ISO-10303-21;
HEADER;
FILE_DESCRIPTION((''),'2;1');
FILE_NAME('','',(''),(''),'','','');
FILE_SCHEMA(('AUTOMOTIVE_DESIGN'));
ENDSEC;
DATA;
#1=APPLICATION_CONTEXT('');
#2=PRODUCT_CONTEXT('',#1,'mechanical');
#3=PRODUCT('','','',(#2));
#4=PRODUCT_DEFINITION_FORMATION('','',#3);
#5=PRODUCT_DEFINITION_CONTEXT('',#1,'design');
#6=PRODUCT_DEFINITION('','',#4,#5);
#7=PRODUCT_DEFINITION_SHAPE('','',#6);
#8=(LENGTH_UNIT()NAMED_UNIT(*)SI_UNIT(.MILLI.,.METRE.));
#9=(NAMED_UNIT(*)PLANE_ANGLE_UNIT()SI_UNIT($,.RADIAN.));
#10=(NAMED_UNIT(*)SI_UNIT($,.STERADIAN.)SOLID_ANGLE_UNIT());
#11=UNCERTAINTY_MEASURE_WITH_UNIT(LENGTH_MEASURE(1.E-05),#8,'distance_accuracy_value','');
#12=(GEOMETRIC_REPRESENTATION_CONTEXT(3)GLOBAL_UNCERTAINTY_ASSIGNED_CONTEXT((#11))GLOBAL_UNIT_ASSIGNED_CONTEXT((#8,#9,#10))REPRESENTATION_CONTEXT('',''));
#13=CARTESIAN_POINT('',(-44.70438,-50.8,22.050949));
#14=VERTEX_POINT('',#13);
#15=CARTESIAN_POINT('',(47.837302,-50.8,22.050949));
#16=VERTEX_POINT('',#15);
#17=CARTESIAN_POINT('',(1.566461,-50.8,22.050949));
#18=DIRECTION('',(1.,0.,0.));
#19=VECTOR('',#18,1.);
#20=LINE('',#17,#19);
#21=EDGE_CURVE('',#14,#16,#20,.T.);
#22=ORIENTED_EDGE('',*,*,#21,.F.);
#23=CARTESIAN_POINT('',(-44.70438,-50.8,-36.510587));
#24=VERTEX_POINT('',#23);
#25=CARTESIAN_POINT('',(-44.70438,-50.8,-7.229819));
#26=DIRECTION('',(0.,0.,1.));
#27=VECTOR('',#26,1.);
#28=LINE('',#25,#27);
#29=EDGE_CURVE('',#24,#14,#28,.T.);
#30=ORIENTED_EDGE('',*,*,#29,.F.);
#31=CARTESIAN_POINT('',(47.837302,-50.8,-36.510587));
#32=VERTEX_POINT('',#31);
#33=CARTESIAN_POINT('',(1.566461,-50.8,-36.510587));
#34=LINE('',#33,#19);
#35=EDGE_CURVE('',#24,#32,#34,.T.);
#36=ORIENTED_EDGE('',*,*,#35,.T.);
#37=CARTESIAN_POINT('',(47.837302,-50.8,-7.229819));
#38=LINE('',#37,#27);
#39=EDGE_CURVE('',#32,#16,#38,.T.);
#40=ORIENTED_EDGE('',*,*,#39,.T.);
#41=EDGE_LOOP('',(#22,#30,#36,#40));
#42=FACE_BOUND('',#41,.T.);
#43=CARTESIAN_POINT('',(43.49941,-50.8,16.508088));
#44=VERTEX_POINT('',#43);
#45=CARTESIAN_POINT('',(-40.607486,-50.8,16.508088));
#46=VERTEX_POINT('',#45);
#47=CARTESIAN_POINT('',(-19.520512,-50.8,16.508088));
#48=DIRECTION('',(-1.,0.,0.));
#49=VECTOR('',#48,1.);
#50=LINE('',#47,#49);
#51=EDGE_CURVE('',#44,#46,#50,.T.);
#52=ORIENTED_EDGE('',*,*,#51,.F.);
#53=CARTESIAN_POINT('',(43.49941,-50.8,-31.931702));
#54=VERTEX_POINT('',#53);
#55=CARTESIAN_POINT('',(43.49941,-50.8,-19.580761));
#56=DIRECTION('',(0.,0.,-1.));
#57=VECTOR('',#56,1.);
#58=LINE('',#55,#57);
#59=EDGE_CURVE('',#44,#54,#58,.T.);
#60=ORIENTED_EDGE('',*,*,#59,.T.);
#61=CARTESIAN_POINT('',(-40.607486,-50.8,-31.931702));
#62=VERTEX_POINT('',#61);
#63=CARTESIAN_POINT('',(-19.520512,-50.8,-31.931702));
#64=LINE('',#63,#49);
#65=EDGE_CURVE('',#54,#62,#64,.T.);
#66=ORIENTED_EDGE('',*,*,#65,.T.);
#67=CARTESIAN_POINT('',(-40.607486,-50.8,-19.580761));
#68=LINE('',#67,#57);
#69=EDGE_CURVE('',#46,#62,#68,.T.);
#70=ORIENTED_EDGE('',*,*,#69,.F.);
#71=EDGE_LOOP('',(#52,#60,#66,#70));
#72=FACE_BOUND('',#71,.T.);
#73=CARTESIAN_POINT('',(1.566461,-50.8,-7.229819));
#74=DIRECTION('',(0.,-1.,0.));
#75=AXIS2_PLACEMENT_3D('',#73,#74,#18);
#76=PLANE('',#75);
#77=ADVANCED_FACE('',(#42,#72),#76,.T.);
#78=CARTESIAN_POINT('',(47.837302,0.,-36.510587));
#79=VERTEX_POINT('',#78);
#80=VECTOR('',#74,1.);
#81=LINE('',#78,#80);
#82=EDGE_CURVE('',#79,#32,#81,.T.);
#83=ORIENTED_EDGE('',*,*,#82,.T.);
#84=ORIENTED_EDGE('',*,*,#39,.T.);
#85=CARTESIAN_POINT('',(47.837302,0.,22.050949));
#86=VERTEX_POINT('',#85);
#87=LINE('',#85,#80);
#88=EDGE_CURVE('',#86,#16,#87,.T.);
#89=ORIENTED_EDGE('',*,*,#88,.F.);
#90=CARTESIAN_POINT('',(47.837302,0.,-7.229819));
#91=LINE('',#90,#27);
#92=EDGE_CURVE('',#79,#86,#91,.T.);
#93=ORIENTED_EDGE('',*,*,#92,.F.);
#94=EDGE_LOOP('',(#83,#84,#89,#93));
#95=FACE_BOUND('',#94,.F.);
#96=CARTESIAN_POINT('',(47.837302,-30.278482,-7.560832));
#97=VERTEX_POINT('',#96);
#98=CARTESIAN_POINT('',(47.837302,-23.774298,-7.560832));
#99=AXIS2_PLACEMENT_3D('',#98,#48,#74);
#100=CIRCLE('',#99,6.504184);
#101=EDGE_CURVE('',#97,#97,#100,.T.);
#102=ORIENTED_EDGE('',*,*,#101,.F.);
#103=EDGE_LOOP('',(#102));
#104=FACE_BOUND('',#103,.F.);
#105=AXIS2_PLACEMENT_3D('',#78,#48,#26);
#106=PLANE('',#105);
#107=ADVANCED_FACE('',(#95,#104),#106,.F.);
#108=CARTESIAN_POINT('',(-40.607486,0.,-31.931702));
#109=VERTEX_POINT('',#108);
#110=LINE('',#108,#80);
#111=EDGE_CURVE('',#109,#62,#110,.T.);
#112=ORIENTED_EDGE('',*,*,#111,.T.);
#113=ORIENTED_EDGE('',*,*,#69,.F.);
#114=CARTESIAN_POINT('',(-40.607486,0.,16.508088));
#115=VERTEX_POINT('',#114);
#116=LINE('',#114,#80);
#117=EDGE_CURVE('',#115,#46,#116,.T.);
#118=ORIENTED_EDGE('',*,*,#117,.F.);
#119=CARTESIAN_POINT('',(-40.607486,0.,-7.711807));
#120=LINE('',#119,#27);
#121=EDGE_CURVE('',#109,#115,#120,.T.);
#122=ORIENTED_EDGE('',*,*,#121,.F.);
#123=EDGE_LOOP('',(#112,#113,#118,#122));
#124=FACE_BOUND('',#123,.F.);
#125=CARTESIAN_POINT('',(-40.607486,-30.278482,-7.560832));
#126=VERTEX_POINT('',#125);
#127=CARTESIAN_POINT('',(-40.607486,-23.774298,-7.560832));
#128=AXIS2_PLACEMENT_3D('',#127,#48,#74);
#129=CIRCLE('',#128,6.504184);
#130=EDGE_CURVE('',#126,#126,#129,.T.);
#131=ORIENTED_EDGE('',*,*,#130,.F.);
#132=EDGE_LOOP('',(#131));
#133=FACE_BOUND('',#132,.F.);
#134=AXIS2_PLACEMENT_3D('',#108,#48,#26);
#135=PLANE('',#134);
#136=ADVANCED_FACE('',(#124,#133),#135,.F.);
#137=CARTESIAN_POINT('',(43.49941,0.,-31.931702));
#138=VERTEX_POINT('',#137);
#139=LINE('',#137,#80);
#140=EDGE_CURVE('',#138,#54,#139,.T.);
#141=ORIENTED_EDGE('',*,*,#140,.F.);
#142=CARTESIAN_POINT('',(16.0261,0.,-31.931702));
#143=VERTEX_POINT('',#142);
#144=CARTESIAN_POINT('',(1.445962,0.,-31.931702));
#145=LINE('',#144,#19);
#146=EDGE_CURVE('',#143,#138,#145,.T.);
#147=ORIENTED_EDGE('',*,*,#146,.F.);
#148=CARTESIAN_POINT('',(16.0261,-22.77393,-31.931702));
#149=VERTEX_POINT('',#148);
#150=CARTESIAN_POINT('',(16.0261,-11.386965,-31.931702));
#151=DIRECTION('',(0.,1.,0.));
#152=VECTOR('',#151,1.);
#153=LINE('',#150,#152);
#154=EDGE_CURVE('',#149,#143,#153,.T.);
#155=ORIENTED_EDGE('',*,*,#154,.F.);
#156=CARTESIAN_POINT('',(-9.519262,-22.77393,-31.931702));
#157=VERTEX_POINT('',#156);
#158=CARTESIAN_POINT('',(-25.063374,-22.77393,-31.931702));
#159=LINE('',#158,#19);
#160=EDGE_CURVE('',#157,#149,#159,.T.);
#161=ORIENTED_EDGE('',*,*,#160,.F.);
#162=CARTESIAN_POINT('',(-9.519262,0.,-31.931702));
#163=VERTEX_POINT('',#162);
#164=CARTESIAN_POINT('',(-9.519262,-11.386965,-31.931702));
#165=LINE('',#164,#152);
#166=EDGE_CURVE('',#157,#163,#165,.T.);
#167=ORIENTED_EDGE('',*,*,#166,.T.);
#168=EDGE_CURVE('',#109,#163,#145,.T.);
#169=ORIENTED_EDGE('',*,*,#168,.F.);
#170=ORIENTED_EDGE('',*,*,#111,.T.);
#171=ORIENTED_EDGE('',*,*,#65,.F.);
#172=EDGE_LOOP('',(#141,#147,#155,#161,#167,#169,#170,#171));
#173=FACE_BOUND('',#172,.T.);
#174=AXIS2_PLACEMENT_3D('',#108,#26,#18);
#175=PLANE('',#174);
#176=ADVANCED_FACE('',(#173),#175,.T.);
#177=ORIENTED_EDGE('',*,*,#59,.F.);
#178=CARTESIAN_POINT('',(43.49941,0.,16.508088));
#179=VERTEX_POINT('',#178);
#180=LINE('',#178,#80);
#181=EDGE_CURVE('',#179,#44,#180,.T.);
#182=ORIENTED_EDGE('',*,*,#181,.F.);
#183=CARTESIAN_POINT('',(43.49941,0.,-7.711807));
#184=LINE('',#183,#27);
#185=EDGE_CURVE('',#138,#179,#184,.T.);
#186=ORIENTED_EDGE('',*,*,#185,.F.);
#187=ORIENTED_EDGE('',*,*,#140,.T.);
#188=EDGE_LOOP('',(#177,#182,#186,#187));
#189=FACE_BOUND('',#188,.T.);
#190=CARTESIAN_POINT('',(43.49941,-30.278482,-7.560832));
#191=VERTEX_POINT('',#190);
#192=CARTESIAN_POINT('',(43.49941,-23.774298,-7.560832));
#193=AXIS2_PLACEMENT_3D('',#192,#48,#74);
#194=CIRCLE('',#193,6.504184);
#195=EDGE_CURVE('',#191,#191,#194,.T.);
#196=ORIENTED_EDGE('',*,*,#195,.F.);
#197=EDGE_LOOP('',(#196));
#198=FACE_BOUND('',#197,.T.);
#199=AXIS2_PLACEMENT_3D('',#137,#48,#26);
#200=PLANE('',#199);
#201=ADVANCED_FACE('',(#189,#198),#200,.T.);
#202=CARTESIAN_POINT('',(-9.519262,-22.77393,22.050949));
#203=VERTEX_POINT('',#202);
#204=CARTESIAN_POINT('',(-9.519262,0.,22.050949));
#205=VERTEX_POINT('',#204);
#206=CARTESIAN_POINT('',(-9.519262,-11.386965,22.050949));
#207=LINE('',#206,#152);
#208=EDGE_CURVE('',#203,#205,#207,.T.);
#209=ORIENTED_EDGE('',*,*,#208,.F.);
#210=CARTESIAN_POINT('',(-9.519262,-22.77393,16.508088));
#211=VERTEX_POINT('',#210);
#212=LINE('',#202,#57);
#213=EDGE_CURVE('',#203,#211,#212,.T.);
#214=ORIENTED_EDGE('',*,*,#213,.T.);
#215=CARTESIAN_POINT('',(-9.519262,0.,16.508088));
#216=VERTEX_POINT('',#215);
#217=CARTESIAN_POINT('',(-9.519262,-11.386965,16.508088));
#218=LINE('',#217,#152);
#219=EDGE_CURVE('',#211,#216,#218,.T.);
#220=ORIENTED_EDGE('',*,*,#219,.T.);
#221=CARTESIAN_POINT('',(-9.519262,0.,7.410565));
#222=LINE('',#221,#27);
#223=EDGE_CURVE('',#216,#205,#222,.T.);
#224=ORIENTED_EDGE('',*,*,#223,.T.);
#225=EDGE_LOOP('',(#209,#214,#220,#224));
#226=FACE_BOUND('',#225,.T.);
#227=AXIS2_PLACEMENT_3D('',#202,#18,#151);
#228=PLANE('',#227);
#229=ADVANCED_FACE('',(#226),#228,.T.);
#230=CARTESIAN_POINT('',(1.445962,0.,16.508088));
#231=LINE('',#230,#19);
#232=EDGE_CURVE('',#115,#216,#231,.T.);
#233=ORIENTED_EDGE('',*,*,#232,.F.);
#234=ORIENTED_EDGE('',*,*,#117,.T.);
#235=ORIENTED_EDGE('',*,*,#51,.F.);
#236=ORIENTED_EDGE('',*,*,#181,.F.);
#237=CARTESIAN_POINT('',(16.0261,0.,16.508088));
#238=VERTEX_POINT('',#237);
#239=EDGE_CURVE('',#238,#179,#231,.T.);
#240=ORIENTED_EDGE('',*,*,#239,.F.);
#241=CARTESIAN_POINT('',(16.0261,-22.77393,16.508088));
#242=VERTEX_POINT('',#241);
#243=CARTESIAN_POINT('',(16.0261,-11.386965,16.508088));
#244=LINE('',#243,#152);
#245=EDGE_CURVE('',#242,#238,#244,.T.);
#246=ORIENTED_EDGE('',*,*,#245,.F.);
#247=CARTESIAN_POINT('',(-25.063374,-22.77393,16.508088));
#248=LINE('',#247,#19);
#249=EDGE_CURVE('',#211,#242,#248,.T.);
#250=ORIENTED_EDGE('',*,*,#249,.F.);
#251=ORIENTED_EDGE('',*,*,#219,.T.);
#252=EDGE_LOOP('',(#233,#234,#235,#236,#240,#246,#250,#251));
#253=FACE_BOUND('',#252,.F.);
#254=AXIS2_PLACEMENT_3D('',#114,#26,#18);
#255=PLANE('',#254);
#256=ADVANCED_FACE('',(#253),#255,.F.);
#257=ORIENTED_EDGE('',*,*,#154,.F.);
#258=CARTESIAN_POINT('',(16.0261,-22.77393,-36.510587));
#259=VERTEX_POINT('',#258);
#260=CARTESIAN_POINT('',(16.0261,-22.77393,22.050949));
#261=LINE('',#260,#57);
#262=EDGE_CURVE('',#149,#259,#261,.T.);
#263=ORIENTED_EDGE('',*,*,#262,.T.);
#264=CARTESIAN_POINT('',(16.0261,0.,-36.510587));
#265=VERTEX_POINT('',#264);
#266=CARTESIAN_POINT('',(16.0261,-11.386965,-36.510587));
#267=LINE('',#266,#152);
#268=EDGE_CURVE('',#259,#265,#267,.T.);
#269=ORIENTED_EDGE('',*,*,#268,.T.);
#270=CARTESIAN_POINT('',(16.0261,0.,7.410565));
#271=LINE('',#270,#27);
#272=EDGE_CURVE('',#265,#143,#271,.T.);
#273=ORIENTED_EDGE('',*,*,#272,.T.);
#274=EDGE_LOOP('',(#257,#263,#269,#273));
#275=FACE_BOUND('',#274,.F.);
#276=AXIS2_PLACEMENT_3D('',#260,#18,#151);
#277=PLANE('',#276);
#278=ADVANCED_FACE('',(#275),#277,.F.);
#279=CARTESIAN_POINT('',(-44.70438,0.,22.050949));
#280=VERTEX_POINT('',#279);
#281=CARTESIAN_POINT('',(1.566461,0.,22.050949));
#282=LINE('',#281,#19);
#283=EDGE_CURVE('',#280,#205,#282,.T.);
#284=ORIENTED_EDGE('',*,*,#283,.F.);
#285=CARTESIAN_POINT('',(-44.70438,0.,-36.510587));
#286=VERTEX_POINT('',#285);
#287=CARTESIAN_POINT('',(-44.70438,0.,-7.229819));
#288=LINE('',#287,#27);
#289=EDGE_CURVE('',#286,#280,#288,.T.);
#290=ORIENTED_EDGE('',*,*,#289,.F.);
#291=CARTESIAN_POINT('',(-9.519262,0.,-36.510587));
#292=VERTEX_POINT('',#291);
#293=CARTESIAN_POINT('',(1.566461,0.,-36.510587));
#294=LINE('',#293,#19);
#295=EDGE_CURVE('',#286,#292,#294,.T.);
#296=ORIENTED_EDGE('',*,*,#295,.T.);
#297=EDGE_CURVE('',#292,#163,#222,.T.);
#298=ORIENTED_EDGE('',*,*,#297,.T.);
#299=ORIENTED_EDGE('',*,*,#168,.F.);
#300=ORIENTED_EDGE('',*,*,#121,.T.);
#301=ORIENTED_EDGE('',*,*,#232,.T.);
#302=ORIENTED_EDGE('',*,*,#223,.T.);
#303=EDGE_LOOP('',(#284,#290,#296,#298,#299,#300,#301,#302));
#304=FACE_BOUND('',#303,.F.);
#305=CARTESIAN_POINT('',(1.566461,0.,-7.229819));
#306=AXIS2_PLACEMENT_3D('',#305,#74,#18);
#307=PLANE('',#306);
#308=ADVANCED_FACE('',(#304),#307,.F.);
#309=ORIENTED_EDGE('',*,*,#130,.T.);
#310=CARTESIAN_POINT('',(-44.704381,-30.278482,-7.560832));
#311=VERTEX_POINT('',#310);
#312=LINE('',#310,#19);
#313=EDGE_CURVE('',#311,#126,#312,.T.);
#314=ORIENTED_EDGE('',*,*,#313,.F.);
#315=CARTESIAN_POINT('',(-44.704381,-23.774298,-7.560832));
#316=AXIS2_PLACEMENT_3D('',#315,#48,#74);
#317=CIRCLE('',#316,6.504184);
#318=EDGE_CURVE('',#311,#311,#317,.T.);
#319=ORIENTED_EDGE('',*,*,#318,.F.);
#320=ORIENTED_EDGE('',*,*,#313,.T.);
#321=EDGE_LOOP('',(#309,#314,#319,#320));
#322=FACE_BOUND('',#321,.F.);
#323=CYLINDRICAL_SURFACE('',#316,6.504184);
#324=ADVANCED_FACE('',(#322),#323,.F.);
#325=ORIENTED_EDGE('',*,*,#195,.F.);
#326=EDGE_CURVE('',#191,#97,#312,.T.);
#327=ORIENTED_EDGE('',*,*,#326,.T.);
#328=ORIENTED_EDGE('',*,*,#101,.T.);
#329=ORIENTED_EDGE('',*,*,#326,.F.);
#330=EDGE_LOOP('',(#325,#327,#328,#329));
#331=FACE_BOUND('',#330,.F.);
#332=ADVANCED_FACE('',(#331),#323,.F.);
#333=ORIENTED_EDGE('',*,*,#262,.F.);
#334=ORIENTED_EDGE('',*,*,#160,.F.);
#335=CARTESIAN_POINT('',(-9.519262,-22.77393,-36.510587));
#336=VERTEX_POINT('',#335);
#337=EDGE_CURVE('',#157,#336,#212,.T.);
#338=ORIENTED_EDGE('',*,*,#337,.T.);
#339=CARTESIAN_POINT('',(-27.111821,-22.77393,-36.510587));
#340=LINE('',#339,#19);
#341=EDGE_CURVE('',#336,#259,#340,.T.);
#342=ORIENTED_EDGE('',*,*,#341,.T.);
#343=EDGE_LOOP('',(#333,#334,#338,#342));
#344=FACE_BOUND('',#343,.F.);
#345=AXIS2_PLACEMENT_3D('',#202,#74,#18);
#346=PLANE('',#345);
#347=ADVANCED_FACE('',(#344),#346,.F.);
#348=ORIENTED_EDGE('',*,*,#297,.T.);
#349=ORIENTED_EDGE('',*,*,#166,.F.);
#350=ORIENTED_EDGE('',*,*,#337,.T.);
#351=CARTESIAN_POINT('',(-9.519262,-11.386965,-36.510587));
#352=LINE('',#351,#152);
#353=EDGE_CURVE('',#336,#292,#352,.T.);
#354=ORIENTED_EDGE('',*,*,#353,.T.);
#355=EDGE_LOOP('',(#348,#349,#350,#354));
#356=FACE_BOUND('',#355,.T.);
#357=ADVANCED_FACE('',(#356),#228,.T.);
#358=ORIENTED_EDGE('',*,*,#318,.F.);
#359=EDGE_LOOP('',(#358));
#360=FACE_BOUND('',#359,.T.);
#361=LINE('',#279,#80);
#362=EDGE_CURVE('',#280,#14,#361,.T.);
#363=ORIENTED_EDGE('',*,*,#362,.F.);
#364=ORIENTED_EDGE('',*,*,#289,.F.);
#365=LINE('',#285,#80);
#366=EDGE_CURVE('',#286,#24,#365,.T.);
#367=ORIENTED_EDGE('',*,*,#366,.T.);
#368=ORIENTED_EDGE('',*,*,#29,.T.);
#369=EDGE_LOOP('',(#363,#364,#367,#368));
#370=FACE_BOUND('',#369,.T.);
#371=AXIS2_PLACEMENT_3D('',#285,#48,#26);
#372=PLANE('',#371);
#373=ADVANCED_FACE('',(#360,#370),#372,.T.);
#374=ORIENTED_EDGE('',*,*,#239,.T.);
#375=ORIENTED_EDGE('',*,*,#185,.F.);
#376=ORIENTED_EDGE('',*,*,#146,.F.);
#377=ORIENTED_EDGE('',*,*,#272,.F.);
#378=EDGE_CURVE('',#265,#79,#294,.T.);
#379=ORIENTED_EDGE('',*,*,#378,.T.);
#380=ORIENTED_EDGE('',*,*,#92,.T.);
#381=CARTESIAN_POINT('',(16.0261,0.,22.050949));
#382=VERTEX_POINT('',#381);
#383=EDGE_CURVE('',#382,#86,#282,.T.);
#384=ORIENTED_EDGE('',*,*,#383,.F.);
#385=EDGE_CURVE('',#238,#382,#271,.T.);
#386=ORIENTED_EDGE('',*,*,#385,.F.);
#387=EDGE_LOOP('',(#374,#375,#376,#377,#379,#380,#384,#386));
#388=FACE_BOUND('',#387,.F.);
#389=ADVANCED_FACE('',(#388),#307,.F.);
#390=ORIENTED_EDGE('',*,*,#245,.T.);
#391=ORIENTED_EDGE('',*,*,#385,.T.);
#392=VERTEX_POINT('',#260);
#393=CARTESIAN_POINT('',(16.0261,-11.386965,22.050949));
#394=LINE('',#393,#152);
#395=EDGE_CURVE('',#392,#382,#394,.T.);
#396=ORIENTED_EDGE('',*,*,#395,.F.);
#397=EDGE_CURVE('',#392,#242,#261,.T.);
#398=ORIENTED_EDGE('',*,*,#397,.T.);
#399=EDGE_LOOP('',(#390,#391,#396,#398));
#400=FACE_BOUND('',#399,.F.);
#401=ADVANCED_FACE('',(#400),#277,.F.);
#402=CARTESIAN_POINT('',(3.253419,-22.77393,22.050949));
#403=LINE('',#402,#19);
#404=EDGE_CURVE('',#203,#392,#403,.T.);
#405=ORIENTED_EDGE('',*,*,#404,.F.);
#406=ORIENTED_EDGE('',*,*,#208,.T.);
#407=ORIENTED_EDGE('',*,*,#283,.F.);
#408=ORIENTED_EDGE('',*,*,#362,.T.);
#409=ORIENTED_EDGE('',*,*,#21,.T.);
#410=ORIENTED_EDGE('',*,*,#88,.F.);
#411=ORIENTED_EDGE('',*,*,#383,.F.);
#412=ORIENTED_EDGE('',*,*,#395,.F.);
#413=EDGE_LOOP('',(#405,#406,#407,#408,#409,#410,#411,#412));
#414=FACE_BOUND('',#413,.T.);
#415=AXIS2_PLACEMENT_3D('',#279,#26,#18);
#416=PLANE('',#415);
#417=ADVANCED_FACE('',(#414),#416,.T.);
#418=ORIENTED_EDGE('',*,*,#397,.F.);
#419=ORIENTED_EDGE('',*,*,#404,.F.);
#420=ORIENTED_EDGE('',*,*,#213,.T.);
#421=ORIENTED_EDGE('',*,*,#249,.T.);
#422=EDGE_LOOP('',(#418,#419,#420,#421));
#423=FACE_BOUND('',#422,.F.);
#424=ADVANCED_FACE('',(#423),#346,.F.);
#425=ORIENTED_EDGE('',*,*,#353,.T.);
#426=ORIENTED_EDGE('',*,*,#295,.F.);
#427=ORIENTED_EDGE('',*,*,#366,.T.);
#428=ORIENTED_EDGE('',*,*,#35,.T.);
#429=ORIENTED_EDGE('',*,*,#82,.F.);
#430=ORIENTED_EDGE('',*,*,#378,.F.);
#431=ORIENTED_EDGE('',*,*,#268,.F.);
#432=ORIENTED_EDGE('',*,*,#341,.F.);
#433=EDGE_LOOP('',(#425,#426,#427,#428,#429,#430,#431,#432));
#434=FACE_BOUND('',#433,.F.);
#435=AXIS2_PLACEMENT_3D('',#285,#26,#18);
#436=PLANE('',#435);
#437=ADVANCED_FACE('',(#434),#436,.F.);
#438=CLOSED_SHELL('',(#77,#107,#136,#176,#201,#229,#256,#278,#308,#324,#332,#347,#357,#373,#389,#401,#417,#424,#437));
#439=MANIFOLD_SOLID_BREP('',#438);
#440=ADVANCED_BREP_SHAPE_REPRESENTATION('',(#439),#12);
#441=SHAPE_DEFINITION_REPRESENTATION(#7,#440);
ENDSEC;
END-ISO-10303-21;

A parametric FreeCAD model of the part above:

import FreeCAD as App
import Part
import Sketcher
Q = App.Units.Quantity


def add_polygon(sketch, points):
    """Adds a closed chain of lines whose ends are joined by coincident constraints."""
    first, n = sketch.GeometryCount, len(points)
    for a, b in zip(points, points[1:] + points[:1]):
        sketch.addGeometry(Part.LineSegment(App.Vector(*a, 0), App.Vector(*b, 0)), False)
    for i in range(n):
        sketch.addConstraint(Sketcher.Constraint("Coincident", first + i, 2, first + (i + 1) % n, 1))

doc = App.newDocument("Part")
body = doc.addObject("PartDesign::Body", "Body")

sketch1 = body.newObject("Sketcher::SketchObject", "Sketch")
sketch1.AttachmentSupport = (doc.getObject("XZ_Plane"), [""])
sketch1.MapMode = "FlatFace"
add_polygon(sketch1, [(-45, 22), (-45, -37), (48, -37), (48, 22)])
sketch1.addConstraint(Sketcher.Constraint("Vertical", 0))
sketch1.addConstraint(Sketcher.Constraint("Horizontal", 1))
sketch1.addConstraint(Sketcher.Constraint("Vertical", 2))
sketch1.addConstraint(Sketcher.Constraint("Horizontal", 3))
sketch1.addConstraint(Sketcher.Constraint("DistanceX", 1, 1, 1, 2, 92.541683))
sketch1.addConstraint(Sketcher.Constraint("DistanceY", 0, 2, 0, 1, 58.561536))
sketch1.addConstraint(Sketcher.Constraint("DistanceX", 0, 2, -1, 1, 44.70438))
sketch1.addConstraint(Sketcher.Constraint("DistanceY", -1, 1, 2, 2, 22.050949))
pad1 = body.newObject("PartDesign::Pad", "Pad")
pad1.Profile = sketch1
pad1.Length = Q("2 in")

sketch2 = body.newObject("Sketcher::SketchObject", "Sketch001")
sketch2.AttachmentSupport = (doc.getObject("XZ_Plane"), [""])
sketch2.MapMode = "FlatFace"
add_polygon(sketch2, [(-41, 17), (-41, -32), (43, -32), (43, 17)])
sketch2.addConstraint(Sketcher.Constraint("Vertical", 0))
sketch2.addConstraint(Sketcher.Constraint("Horizontal", 1))
sketch2.addConstraint(Sketcher.Constraint("Vertical", 2))
sketch2.addConstraint(Sketcher.Constraint("Horizontal", 3))
sketch2.addConstraint(Sketcher.Constraint("DistanceY", 0, 2, 0, 1, 48.43979))
sketch2.addConstraint(Sketcher.Constraint("DistanceX", 1, 1, 1, 2, 84.106896))
sketch2.addConstraint(Sketcher.Constraint("DistanceX", -1, 1, 1, 2, 43.49941))
sketch2.addConstraint(Sketcher.Constraint("DistanceY", -1, 1, 2, 2, 16.508088))
pocket1 = body.newObject("PartDesign::Pocket", "Pocket")
pocket1.Profile = sketch2
pocket1.Length = Q("2.02 in")
pocket1.Reversed = True

sketch3 = body.newObject("Sketcher::SketchObject", "Sketch002")
sketch3.AttachmentSupport = (doc.getObject("XY_Plane"), [""])
sketch3.MapMode = "FlatFace"
sketch3.AttachmentOffset = App.Placement(App.Vector(0, 0, 22.050949), App.Rotation())
add_polygon(sketch3, [(-10, 0), (-10, -23), (16, -23), (16, 0)])
sketch3.addConstraint(Sketcher.Constraint("Vertical", 0))
sketch3.addConstraint(Sketcher.Constraint("Horizontal", 1))
sketch3.addConstraint(Sketcher.Constraint("Vertical", 2))
sketch3.addConstraint(Sketcher.Constraint("Horizontal", 3))
sketch3.addConstraint(Sketcher.Constraint("PointOnObject", 2, 2, -1))
sketch3.addConstraint(Sketcher.Constraint("DistanceX", 1, 1, 1, 2, 25.545361))
sketch3.addConstraint(Sketcher.Constraint("DistanceY", 0, 2, 0, 1, 22.773931))
sketch3.addConstraint(Sketcher.Constraint("DistanceX", -1, 1, 1, 2, 16.0261))
pocket2 = body.newObject("PartDesign::Pocket", "Pocket001")
pocket2.Profile = sketch3
pocket2.Length = Q("2.32 in")

sketch4 = body.newObject("Sketcher::SketchObject", "Sketch003")
sketch4.AttachmentSupport = (doc.getObject("YZ_Plane"), [""])
sketch4.MapMode = "FlatFace"
sketch4.AttachmentOffset = App.Placement(App.Vector(0, 0, -44.704381), App.Rotation())
sketch4.addGeometry(Part.Circle(App.Vector(-24, -8, 0), App.Vector(0, 0, 1), 7), False)
sketch4.addConstraint(Sketcher.Constraint("Diameter", 0, 13.008368))
sketch4.addConstraint(Sketcher.Constraint("DistanceX", 0, 3, -1, 1, 23.774298))
sketch4.addConstraint(Sketcher.Constraint("DistanceY", 0, 3, -1, 1, 7.560832))
pocket3 = body.newObject("PartDesign::Pocket", "Pocket002")
pocket3.Profile = sketch4
pocket3.Length = Q("4.34 in")
pocket3.Reversed = True

doc.recompute()
